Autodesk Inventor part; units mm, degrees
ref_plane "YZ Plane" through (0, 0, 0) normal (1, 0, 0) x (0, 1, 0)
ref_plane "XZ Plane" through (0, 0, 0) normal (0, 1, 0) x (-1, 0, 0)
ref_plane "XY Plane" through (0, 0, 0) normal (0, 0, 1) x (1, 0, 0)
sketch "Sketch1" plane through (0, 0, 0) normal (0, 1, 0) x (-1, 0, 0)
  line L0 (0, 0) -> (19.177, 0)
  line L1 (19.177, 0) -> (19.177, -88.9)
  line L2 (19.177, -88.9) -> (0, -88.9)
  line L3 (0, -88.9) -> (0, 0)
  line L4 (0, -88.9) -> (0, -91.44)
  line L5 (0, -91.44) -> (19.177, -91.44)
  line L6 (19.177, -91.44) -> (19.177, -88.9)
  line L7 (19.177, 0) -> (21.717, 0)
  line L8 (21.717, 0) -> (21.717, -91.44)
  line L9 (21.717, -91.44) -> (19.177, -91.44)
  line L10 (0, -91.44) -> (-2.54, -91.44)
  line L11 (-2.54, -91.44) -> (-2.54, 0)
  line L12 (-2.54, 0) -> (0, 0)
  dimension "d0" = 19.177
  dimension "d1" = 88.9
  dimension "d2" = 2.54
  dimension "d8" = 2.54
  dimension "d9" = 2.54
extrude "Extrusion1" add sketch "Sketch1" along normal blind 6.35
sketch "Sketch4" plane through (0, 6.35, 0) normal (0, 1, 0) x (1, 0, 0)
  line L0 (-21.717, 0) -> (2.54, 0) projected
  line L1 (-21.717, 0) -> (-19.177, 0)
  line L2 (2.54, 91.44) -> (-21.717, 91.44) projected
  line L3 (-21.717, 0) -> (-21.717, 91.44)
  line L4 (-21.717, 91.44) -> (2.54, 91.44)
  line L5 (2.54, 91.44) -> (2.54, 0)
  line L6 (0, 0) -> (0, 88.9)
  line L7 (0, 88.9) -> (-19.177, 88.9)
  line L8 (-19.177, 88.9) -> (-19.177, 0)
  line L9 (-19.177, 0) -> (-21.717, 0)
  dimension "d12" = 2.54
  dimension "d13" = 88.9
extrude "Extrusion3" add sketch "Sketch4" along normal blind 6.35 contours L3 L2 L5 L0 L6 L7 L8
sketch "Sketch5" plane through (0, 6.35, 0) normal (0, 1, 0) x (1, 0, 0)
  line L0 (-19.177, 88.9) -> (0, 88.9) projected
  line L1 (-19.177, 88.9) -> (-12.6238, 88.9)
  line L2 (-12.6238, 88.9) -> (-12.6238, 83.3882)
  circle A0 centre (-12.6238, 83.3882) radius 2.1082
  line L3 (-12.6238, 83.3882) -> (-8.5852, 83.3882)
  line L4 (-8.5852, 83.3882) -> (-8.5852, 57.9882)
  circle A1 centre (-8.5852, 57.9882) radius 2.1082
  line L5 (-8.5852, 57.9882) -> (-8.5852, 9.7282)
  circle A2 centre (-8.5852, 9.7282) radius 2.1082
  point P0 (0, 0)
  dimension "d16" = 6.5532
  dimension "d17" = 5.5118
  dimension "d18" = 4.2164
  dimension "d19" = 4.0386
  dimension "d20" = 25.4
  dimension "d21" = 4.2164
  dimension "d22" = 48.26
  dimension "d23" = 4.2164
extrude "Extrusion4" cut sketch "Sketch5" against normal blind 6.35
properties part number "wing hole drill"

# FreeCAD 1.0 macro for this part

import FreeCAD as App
import Part
import Sketcher
from FreeCAD import Vector
Q = App.Units.Quantity

doc = App.newDocument("Part")
body = doc.addObject("PartDesign::Body", "Body")

# Sketch on XZ plane
sketch1 = body.newObject("Sketcher::SketchObject", "Sketch")
sketch1.AttachmentSupport = (doc.getObject("XZ_Plane"), [""])
sketch1.MapMode = "FlatFace"
sketch1.addGeometry([
    Part.LineSegment(Vector(3, 0, 0), Vector(3, -91, 0)),
    Part.LineSegment(Vector(3, -91, 0), Vector(-22, -91, 0)),
    Part.LineSegment(Vector(-22, -91, 0), Vector(-22, 0, 0)),
    Part.LineSegment(Vector(-22, 0, 0), Vector(3, 0, 0)),
], False)
sketch1.addConstraint([
    Sketcher.Constraint("Coincident", 0, 2, 1, 1),
    Sketcher.Constraint("Coincident", 1, 2, 2, 1),
    Sketcher.Constraint("Coincident", 2, 2, 3, 1),
    Sketcher.Constraint("Coincident", 3, 2, 0, 1),
    Sketcher.Constraint("Vertical", 0),
    Sketcher.Constraint("Horizontal", 1),
    Sketcher.Constraint("Vertical", 2),
    Sketcher.Constraint("Horizontal", 3),
    Sketcher.Constraint("PointOnObject", 2, 2, -1),
    Sketcher.Constraint("DistanceX", -1, 1, 0, 2, Q("0.1 in")),
    Sketcher.Constraint("DistanceY", 0, 2, 0, 1, Q("3.6 in")),
    Sketcher.Constraint("DistanceX", 1, 2, 1, 1, Q("0.955 in")),
])
pad1 = body.newObject("PartDesign::Pad", "Pad")
pad1.Profile = sketch1
pad1.Length = Q("0.25 in")
pad1.Reversed = True

# Sketch on XZ plane
sketch2 = body.newObject("Sketcher::SketchObject", "Sketch001")
sketch2.AttachmentSupport = (doc.getObject("XZ_Plane"), [""])
sketch2.MapMode = "FlatFace"
sketch2.AttachmentOffset = App.Placement(Vector(0, 0, -0.25 * 25.4), App.Rotation())
sketch2.addGeometry([
    Part.LineSegment(Vector(-21.7, -91.4, 0), Vector(-21.7, 0, 0)),  # 0
    Part.LineSegment(Vector(-21.7, 0, 0), Vector(-19.2, 0, 0)),  # 1
    Part.LineSegment(Vector(-19.2, 0, 0), Vector(-19.2, -88.9, 0)),  # 2
    Part.LineSegment(Vector(-19.2, -88.9, 0), Vector(0, -88.9, 0)),  # 3
    Part.LineSegment(Vector(0, -88.9, 0), Vector(0, 0, 0)),  # 4
    Part.LineSegment(Vector(0, 0, 0), Vector(2.5, 0, 0)),  # 5
    Part.LineSegment(Vector(2.5, 0, 0), Vector(2.5, -91.4, 0)),  # 6
    Part.LineSegment(Vector(2.5, -91.4, 0), Vector(-21.7, -91.4, 0)),  # 7
], False)
sketch2.addConstraint([
    Sketcher.Constraint("Coincident", 0, 2, 1, 1),
    Sketcher.Constraint("Coincident", 1, 2, 2, 1),
    Sketcher.Constraint("Coincident", 2, 2, 3, 1),
    Sketcher.Constraint("Coincident", 3, 2, 4, 1),
    Sketcher.Constraint("Coincident", 4, 2, 5, 1),
    Sketcher.Constraint("Coincident", 5, 2, 6, 1),
    Sketcher.Constraint("Coincident", 6, 2, 7, 1),
    Sketcher.Constraint("Coincident", 7, 2, 0, 1),
    Sketcher.Constraint("Vertical", 0),
    Sketcher.Constraint("Horizontal", 1),
    Sketcher.Constraint("Vertical", 2),
    Sketcher.Constraint("Horizontal", 3),
    Sketcher.Constraint("Vertical", 4),
    Sketcher.Constraint("Horizontal", 5),
    Sketcher.Constraint("Vertical", 6),
    Sketcher.Constraint("Horizontal", 7),
    Sketcher.Constraint("Coincident", 4, 2, -1, 1),
    Sketcher.Constraint("PointOnObject", 0, 2, -1),
    Sketcher.Constraint("Equal", 1, 5),
    Sketcher.Constraint("DistanceX", 1, 1, 1, 2, Q("0.1 in")),
    Sketcher.Constraint("DistanceY", 2, 2, 2, 1, Q("3.5 in")),
    Sketcher.Constraint("DistanceY", 6, 2, 3, 2, Q("0.1 in")),
    Sketcher.Constraint("DistanceX", 3, 1, 3, 2, Q("0.755 in")),
])
pad2 = body.newObject("PartDesign::Pad", "Pad001")
pad2.Profile = sketch2
pad2.Length = Q("0.25 in")
pad2.Reversed = True

# Sketch on XZ plane
sketch3 = body.newObject("Sketcher::SketchObject", "Sketch002")
sketch3.AttachmentSupport = (doc.getObject("XZ_Plane"), [""])
sketch3.MapMode = "FlatFace"
sketch3.AttachmentOffset = App.Placement(Vector(0, 0, -0.25 * 25.4), App.Rotation())
sketch3.addGeometry([
    Part.Circle(Vector(-12.6, -83.4, 0), Vector(0, 0, 1), 2.1),
    Part.Circle(Vector(-8.6, -9.7, 0), Vector(0, 0, 1), 2.1),
    Part.Circle(Vector(-8.6, -58, 0), Vector(0, 0, 1), 2.1),
], False)
sketch3.addConstraint([
    Sketcher.Constraint("Equal", 0, 1),
    Sketcher.Constraint("Equal", 1, 2),
    Sketcher.Constraint("Vertical", 1, 3, 2, 3),
    Sketcher.Constraint("Diameter", 0, Q("0.166 in")),
    Sketcher.Constraint("DistanceY", 0, 3, 2, 3, Q("1 in")),
    Sketcher.Constraint("DistanceY", 2, 3, 1, 3, Q("1.9 in")),
    Sketcher.Constraint("DistanceX", 0, 3, 1, 3, Q("0.159 in")),
    Sketcher.Constraint("DistanceX", 0, 3, -1, 1, Q("0.497 in")),
    Sketcher.Constraint("DistanceY", 0, 3, -1, 1, Q("3.283 in")),
])
pocket1 = body.newObject("PartDesign::Pocket", "Pocket")
pocket1.Profile = sketch3
pocket1.Length = Q("0.25 in")
pocket1.Reversed = True

doc.recompute()
